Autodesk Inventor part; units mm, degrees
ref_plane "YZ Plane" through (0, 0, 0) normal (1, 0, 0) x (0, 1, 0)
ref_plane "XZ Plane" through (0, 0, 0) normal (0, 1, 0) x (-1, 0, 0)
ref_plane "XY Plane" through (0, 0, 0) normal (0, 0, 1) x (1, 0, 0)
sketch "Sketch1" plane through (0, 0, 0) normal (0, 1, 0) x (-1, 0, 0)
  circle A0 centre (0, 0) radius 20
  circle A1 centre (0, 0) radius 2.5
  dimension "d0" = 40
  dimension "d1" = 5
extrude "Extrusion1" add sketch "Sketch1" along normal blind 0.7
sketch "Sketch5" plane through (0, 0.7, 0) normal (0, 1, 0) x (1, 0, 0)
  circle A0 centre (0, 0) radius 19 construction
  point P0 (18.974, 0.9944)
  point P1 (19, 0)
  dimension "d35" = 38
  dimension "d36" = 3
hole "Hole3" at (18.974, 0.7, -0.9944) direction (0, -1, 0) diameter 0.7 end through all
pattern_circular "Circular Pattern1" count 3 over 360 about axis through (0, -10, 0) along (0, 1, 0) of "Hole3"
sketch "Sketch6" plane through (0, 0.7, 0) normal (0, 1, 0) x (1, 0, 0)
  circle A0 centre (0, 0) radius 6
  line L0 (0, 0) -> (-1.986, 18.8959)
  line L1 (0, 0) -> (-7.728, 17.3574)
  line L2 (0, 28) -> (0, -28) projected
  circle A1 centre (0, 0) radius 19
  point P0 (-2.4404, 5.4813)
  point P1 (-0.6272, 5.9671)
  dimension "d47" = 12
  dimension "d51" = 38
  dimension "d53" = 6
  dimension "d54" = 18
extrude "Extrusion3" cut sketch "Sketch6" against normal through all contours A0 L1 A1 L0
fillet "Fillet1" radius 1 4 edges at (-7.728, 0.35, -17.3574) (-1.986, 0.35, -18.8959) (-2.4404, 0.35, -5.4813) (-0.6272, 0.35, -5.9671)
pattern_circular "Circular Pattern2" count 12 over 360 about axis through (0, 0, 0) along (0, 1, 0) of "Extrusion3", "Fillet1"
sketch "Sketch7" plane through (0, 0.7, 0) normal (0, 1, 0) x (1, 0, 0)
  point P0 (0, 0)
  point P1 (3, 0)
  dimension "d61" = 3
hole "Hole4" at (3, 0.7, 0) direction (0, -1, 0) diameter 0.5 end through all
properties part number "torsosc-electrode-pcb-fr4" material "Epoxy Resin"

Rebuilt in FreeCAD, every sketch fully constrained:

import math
import FreeCAD as App
import Part
import Sketcher
from FreeCAD import Vector
Q = App.Units.Quantity


def edges_at(feature, points):
    """Names of the edges that pass closest to the given points."""
    edges = feature.Shape.Edges
    near = lambda p: min(range(len(edges)), key=lambda i: edges[i].distToShape(Part.Vertex(*p))[0])
    return sorted({f"Edge{near(p) + 1}" for p in points})

doc = App.newDocument("Part")
params = doc.addObject("Spreadsheet::Sheet", "Params")
for row, (alias, value) in enumerate([
    ("sketch1_diameter", "40 mm"),
    ("sketch1_diameter2", "5 mm"),
    ("pad1_length", "0.7 mm"),
    ("sketch2_diameter", "0.7 mm"),
    ("hole_diameter", "0.7 mm"),
    ("sketch3_radius", "6 mm"),
    ("sketch3_radius2", "19 mm"),
    ("fillet_radius", "1 mm"),
    ("sketch4_diameter", "0.5 mm"),
    ("hole2_diameter", "0.5 mm"),
], start=1):
    params.set(f"A{row}", alias)
    params.set(f"B{row}", "=" + value)
    params.setAlias(f"B{row}", alias)

body = doc.addObject("PartDesign::Body", "Body")

sketch1 = body.newObject("Sketcher::SketchObject", "Sketch")
sketch1.AttachmentSupport = (doc.getObject("XZ_Plane"), [""])
sketch1.MapMode = "FlatFace"
sketch1.addGeometry([
    Part.Circle(Vector(0, 0, 0), Vector(0, 0, 1), 20),
    Part.Circle(Vector(0, 0, 0), Vector(0, 0, 1), 2.5),
], False)
sketch1.addConstraint([
    Sketcher.Constraint("Coincident", 0, 3, -1, 1),
    Sketcher.Constraint("Coincident", 1, 3, -1, 1),
    Sketcher.Constraint("Diameter", 0, 40.0),
    Sketcher.Constraint("Diameter", 1, 5.0),
])
sketch1.setExpression("Constraints[2]", "Params.sketch1_diameter")
sketch1.setExpression("Constraints[3]", "Params.sketch1_diameter2")
pad1 = body.newObject("PartDesign::Pad", "Pad")
pad1.Profile = sketch1
pad1.setExpression("Length", "Params.pad1_length")
pad1.Reversed = True

sketch2 = body.newObject("Sketcher::SketchObject", "Sketch001")
sketch2.AttachmentSupport = (doc.getObject("XZ_Plane"), [""])
sketch2.MapMode = "FlatFace"
sketch2.AttachmentOffset = App.Placement(Vector(0, 0, -0.7), App.Rotation())
sketch2.addGeometry(Part.Circle(Vector(18.97, -0.99, 0), Vector(0, 0, 1), 0.35), False)
sketch2.addConstraint([
    Sketcher.Constraint("Diameter", 0, 0.7),
    Sketcher.Constraint("DistanceX", -1, 1, 0, 3, 18.974),
    Sketcher.Constraint("DistanceY", 0, 3, -1, 1, 0.9944),
])
sketch2.setExpression("Constraints[0]", "Params.sketch2_diameter")
doc.recompute()
hole = body.newObject("PartDesign::Hole", "Hole")
hole.Profile = sketch2
hole.ThreadType = "None"
hole.setExpression("Diameter", "Params.hole_diameter")
hole.DepthType = "ThroughAll"
hole.Reversed = True
doc.recompute()

polarpattern = body.newObject("PartDesign::PolarPattern", "PolarPattern")
polarpattern.Originals = [hole]
polarpattern.Axis = (doc.getObject("Y_Axis"), [""])
polarpattern.Angle = 360
polarpattern.Occurrences = 3
body.Tip = polarpattern

sketch3 = body.newObject("Sketcher::SketchObject", "Sketch002")
sketch3.AttachmentSupport = (doc.getObject("XZ_Plane"), [""])
sketch3.MapMode = "FlatFace"
sketch3.AttachmentOffset = App.Placement(Vector(0, 0, -0.7), App.Rotation())
sketch3.addGeometry([
    Part.ArcOfCircle(Part.Circle(Vector(0, 0, 0), Vector(0, 0, 1), 6), math.radians(-114), math.radians(-96)),
    Part.LineSegment(Vector(-0.6, -6, 0), Vector(-2, -18.9, 0)),
    Part.ArcOfCircle(Part.Circle(Vector(0, 0, 0), Vector(0, 0, 1), 19), math.radians(-114), math.radians(-96)),
    Part.LineSegment(Vector(-7.7, -17.4, 0), Vector(-2.4, -5.5, 0)),
], False)
sketch3.addConstraint([
    Sketcher.Constraint("Coincident", 0, 2, 1, 1),
    Sketcher.Constraint("Coincident", 1, 2, 2, 2),
    Sketcher.Constraint("Coincident", 2, 1, 3, 1),
    Sketcher.Constraint("Coincident", 3, 2, 0, 1),
    Sketcher.Constraint("Coincident", 0, 3, -1, 1),
    Sketcher.Constraint("Coincident", 2, 3, -1, 1),
    Sketcher.Constraint("Radius", 0, 6.0),
    Sketcher.Constraint("Radius", 2, 19.0),
    Sketcher.Constraint("Angle", 1, Q("-96 deg")),
    Sketcher.Constraint("Angle", 3, Q("66 deg")),
    Sketcher.Constraint("DistanceX", 1, 2, -1, 1, 1.986),
    Sketcher.Constraint("DistanceX", 2, 1, -1, 1, 7.728),
])
sketch3.setExpression("Constraints[6]", "Params.sketch3_radius")
sketch3.setExpression("Constraints[7]", "Params.sketch3_radius2")
pocket1 = body.newObject("PartDesign::Pocket", "Pocket")
pocket1.Profile = sketch3
pocket1.Type = "ThroughAll"
pocket1.Reversed = True
doc.recompute()

fillet = body.newObject("PartDesign::Fillet", "Fillet")
fillet.Base = (pocket1, edges_at(pocket1, [
    (-7.728, 0.35, -17.357),
    (-1.986, 0.35, -18.896),
    (-2.44, 0.35, -5.481),
    (-0.627, 0.35, -5.967),
]))
fillet.setExpression("Radius", "Params.fillet_radius")
doc.recompute()

polarpattern2 = body.newObject("PartDesign::PolarPattern", "PolarPattern001")
polarpattern2.Originals = [pocket1, fillet]
polarpattern2.Axis = (doc.getObject("Y_Axis"), [""])
polarpattern2.Angle = 360
polarpattern2.Occurrences = 12
body.Tip = polarpattern2

sketch4 = body.newObject("Sketcher::SketchObject", "Sketch003")
sketch4.AttachmentSupport = (doc.getObject("XZ_Plane"), [""])
sketch4.MapMode = "FlatFace"
sketch4.AttachmentOffset = App.Placement(Vector(0, 0, -0.7), App.Rotation())
sketch4.addGeometry(Part.Circle(Vector(3, 0, 0), Vector(0, 0, 1), 0.25), False)
sketch4.addConstraint([
    Sketcher.Constraint("PointOnObject", 0, 3, -1),
    Sketcher.Constraint("Diameter", 0, 0.5),
    Sketcher.Constraint("DistanceX", -1, 1, 0, 3, 3.0),
])
sketch4.setExpression("Constraints[1]", "Params.sketch4_diameter")
doc.recompute()
hole2 = body.newObject("PartDesign::Hole", "Hole001")
hole2.Profile = sketch4
hole2.ThreadType = "None"
hole2.setExpression("Diameter", "Params.hole2_diameter")
hole2.DepthType = "ThroughAll"
hole2.Reversed = True

doc.recompute()
